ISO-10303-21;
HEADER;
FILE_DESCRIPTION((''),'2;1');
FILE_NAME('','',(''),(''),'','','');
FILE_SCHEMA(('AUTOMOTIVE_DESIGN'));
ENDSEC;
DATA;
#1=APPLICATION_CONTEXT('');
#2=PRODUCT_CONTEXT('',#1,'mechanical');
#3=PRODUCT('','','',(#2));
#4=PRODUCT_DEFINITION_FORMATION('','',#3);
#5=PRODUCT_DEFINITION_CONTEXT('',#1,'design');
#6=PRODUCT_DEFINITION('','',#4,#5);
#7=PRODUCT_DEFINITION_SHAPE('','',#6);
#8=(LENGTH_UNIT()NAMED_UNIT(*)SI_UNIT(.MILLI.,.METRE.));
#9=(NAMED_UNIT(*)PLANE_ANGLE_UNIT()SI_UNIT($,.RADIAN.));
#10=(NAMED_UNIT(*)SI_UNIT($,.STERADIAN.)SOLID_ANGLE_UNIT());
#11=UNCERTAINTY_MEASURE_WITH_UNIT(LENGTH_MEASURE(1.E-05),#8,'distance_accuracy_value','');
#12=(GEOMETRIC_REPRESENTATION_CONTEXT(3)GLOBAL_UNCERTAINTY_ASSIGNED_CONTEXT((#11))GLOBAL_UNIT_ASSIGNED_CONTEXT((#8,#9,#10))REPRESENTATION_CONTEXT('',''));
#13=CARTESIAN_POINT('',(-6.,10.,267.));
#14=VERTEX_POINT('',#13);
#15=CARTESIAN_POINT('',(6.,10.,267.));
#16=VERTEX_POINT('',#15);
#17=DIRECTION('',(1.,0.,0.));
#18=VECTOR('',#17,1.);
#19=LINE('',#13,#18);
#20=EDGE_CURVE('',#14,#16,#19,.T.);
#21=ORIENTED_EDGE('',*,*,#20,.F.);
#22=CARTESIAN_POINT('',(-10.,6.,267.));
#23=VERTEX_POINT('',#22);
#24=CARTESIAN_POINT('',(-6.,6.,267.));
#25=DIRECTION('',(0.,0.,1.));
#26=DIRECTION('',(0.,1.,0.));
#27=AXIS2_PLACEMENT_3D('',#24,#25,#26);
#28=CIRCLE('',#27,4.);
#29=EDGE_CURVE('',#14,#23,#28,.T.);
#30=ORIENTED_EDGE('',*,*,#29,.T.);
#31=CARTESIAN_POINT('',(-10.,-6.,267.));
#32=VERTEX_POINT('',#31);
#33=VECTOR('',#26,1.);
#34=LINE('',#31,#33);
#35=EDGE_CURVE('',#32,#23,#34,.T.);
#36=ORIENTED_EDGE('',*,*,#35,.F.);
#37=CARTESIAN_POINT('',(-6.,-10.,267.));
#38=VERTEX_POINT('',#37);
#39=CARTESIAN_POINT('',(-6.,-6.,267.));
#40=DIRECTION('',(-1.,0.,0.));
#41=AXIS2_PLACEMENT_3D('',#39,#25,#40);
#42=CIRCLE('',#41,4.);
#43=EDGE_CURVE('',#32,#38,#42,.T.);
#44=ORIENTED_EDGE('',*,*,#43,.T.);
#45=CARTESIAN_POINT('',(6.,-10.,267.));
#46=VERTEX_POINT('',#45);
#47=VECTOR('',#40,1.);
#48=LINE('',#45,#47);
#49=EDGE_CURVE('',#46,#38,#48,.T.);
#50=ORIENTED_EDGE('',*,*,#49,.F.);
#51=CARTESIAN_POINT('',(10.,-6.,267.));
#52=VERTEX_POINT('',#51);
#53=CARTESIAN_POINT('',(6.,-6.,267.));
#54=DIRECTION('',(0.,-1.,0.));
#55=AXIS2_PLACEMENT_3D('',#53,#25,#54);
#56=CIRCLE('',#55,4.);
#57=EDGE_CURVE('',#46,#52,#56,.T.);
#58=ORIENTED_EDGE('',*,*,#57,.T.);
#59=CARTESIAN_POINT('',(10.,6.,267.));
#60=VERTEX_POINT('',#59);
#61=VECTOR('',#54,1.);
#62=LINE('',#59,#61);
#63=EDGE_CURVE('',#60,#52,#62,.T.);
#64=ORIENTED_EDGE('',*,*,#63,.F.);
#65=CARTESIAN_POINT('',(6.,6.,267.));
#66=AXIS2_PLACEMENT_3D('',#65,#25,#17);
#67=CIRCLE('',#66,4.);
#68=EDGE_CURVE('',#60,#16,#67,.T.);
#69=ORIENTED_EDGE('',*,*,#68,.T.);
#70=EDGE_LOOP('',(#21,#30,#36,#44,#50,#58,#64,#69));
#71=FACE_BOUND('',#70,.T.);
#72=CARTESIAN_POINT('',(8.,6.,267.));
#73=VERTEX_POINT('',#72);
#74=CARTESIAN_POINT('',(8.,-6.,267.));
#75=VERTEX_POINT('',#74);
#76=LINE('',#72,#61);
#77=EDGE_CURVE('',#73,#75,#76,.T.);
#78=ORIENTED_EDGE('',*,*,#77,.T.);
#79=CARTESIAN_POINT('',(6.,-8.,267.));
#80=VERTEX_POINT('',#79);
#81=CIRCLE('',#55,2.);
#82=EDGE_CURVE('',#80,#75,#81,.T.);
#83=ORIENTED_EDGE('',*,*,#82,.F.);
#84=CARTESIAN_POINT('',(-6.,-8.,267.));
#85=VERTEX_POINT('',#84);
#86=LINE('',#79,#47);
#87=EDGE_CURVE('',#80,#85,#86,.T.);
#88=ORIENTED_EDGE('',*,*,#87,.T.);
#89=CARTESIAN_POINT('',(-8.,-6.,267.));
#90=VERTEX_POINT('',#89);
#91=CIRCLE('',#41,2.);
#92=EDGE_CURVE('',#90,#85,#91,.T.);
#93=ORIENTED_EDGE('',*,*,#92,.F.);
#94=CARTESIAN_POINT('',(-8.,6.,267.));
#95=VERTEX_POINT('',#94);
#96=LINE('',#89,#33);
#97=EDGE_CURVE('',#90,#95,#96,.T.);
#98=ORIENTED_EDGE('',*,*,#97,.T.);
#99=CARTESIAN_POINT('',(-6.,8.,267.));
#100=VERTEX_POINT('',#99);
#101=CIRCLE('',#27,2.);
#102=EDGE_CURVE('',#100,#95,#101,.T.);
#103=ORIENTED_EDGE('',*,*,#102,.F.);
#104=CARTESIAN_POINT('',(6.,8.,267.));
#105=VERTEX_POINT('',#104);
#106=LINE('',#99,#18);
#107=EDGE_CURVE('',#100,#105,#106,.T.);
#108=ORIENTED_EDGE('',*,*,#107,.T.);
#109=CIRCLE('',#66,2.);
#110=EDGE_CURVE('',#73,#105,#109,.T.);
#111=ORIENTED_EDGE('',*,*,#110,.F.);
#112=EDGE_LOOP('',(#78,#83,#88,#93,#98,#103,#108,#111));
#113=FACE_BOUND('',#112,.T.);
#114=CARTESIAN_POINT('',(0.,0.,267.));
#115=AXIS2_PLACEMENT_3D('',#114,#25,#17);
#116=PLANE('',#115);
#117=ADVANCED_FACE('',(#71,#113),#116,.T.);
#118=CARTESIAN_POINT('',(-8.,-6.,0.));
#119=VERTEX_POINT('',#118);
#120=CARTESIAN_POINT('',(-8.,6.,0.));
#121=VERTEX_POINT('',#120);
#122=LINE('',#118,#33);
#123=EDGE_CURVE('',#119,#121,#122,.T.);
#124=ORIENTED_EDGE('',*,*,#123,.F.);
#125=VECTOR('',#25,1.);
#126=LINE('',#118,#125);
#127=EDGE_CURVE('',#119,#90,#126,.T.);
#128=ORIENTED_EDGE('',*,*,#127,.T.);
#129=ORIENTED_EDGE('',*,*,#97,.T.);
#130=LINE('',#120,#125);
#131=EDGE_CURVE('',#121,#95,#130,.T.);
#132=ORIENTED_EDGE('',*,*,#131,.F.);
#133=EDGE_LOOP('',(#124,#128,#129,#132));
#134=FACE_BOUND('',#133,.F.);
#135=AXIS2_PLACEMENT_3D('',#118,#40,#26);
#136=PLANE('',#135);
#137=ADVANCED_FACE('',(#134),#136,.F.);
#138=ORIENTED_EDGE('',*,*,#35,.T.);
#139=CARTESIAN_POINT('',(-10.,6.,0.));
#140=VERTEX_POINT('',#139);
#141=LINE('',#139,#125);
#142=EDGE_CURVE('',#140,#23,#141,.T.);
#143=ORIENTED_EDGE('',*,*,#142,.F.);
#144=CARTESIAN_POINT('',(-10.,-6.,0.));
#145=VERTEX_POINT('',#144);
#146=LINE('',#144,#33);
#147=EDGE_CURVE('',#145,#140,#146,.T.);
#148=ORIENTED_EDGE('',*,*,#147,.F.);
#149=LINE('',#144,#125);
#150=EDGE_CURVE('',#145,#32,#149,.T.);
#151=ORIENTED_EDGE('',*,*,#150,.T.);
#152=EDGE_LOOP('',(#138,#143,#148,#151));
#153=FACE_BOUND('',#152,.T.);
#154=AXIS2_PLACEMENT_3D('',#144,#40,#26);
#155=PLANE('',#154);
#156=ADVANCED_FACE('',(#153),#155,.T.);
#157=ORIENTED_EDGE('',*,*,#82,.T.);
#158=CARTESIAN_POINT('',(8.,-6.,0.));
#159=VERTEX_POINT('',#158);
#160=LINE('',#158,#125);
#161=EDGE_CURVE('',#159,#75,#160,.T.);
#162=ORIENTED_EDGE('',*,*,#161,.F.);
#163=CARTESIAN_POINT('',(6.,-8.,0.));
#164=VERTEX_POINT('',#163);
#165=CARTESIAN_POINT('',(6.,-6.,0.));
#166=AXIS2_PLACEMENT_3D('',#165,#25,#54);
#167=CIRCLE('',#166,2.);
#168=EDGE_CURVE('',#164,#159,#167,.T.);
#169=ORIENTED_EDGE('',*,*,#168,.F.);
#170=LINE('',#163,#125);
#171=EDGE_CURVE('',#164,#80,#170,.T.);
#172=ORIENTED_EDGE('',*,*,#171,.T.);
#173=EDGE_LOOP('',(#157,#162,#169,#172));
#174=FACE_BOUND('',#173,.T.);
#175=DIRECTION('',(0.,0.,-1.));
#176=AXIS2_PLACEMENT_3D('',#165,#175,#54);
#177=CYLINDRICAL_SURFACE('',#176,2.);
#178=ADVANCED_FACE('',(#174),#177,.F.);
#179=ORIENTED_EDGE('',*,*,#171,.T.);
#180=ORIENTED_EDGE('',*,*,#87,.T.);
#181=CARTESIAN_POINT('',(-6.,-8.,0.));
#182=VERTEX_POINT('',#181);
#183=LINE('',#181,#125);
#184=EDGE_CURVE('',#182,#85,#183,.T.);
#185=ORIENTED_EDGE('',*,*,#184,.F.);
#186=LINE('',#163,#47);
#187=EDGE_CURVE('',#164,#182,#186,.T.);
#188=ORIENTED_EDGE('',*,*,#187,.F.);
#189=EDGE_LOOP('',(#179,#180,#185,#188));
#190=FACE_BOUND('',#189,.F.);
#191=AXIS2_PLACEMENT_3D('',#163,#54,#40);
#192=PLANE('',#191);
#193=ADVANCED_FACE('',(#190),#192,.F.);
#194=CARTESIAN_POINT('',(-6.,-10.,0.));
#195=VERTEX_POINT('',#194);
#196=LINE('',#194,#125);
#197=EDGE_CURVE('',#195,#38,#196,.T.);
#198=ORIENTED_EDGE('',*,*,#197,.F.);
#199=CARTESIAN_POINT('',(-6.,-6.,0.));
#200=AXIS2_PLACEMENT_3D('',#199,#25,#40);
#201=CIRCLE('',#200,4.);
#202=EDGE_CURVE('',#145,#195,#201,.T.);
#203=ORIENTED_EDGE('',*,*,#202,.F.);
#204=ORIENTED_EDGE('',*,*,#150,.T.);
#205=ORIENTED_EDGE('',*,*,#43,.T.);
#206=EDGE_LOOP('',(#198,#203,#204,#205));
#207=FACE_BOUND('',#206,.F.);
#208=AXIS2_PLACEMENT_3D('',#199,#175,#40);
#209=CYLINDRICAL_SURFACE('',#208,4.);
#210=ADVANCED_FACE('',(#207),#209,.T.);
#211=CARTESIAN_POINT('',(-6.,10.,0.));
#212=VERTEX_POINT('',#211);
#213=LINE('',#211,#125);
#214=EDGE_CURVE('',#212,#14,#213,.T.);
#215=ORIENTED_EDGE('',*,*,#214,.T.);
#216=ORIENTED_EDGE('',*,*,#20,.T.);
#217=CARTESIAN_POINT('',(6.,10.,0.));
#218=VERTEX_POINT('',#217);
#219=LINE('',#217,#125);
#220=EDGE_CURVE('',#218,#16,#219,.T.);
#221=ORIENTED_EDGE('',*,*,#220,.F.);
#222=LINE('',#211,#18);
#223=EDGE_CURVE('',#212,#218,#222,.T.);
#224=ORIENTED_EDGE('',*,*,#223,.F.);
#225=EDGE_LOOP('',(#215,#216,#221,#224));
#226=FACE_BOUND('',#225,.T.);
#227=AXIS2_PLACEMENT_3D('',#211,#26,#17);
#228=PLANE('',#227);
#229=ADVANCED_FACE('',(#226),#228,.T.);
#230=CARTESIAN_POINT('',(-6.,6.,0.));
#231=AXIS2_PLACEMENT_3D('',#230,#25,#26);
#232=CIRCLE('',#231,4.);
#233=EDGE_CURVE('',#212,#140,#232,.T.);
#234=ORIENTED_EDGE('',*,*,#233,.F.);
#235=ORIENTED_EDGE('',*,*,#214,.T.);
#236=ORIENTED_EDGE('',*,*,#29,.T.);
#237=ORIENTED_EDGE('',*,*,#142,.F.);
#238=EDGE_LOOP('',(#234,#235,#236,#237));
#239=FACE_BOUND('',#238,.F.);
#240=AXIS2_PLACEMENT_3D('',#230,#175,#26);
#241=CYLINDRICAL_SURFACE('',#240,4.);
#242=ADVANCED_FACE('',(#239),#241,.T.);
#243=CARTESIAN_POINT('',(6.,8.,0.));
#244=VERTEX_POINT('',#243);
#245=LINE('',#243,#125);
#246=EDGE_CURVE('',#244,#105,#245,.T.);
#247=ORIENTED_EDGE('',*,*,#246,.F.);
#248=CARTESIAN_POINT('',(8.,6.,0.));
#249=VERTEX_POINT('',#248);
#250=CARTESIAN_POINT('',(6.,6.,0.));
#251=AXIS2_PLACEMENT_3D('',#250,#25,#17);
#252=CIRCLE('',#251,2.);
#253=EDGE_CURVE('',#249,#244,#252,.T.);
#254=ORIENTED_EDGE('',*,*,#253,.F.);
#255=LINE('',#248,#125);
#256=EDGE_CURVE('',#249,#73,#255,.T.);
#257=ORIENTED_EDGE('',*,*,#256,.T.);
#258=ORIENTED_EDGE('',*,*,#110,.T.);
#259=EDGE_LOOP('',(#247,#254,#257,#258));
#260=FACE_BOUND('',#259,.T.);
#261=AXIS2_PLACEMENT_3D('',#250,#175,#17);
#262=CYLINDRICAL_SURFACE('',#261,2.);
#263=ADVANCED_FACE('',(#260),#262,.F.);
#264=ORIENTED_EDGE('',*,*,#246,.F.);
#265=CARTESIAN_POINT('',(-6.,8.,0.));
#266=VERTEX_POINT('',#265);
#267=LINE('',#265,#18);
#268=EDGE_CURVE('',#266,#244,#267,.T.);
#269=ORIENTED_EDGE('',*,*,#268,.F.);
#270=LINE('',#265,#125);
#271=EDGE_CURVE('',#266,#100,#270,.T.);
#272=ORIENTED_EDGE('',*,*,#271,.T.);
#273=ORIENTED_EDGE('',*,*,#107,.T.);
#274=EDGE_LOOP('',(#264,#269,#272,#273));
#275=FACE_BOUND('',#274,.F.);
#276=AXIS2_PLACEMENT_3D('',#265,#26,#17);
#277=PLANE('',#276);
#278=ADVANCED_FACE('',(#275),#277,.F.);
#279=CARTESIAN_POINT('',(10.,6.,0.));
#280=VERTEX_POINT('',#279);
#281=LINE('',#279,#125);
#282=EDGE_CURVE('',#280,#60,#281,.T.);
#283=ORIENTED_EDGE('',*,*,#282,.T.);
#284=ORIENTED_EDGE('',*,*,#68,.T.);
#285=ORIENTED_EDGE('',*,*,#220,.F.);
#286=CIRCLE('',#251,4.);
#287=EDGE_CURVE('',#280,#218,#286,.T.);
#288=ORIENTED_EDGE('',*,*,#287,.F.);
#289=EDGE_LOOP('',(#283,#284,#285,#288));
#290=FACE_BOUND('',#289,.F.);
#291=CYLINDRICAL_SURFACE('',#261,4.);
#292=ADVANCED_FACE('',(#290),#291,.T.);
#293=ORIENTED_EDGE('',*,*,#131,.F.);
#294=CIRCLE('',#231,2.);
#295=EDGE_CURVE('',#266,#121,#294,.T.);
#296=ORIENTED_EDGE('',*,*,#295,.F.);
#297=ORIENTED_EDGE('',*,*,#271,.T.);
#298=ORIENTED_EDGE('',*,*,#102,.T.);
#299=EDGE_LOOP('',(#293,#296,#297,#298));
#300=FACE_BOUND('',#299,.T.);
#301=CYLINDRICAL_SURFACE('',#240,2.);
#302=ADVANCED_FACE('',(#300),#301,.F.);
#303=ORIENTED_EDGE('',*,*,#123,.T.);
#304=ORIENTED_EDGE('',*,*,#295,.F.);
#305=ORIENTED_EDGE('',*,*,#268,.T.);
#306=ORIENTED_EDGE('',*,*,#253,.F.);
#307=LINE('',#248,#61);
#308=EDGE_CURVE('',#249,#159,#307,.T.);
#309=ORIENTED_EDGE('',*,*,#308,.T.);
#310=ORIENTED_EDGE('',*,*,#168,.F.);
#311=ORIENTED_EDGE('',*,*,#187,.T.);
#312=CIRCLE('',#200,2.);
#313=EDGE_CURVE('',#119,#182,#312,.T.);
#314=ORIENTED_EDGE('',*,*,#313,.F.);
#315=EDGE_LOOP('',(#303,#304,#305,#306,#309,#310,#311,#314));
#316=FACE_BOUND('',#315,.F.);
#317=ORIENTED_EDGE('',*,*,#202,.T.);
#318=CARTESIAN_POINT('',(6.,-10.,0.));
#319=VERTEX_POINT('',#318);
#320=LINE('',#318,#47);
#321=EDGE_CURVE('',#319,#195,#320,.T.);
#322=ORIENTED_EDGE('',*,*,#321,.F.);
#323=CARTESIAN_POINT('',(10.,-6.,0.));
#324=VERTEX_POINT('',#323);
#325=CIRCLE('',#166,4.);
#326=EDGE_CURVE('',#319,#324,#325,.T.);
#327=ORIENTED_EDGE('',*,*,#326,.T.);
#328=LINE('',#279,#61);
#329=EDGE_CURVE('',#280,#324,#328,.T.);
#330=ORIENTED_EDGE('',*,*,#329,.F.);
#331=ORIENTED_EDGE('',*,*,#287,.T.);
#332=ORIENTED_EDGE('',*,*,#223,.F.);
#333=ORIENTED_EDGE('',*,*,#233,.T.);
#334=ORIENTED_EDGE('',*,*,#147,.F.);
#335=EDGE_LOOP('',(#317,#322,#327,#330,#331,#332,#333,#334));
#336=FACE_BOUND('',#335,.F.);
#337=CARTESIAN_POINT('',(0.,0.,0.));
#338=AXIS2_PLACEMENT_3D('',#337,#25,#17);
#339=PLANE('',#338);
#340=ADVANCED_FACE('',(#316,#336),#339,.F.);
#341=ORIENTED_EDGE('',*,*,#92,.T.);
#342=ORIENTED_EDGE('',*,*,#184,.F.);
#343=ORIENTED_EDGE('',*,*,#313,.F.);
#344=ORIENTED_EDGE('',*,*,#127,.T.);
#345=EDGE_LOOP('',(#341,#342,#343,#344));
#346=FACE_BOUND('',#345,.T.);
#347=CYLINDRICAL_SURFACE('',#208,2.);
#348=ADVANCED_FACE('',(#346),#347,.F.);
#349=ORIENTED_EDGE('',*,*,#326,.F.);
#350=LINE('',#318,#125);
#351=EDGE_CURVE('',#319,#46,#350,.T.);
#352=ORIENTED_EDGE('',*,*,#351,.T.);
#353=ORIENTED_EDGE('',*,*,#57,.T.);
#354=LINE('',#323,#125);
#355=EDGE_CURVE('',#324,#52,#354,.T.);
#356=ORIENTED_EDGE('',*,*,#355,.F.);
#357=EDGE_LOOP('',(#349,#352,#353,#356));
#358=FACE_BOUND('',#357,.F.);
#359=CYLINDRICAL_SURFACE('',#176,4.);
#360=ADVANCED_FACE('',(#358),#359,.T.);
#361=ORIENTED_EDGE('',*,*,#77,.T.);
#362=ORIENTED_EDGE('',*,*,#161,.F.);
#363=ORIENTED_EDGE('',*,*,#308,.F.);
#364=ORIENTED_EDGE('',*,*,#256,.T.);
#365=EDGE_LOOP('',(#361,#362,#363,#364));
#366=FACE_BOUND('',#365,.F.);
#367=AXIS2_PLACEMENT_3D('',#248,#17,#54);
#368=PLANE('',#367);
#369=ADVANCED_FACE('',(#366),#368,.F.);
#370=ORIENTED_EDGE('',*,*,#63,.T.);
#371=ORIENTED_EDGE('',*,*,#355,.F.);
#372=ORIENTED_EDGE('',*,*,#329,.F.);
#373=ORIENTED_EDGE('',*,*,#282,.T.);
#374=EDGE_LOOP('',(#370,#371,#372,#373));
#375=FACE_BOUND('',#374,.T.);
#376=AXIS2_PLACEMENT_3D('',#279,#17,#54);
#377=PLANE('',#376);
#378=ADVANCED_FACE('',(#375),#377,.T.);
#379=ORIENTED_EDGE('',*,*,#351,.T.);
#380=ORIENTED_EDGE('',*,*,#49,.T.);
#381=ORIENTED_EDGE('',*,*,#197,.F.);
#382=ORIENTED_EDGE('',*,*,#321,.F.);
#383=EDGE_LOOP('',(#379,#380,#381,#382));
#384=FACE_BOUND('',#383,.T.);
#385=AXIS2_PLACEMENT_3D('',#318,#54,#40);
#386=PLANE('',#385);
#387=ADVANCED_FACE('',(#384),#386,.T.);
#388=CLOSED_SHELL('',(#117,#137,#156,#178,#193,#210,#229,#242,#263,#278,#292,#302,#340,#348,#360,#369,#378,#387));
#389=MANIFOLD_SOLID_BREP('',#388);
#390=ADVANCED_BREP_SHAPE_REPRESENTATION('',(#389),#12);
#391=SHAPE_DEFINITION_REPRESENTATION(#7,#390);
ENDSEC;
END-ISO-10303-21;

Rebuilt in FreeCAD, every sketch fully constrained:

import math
import FreeCAD as App
import Part
import Sketcher
Q = App.Units.Quantity

doc = App.newDocument("Part")
params = doc.addObject("Spreadsheet::Sheet", "Params")
for row, (alias, value) in enumerate([
    ("sketch1_radius", "4 mm"),
    ("sketch1_radius2", "2 mm"),
    ("pad1_length", "267 mm"),
], start=1):
    params.set(f"A{row}", alias)
    params.set(f"B{row}", "=" + value)
    params.setAlias(f"B{row}", alias)

body = doc.addObject("PartDesign::Body", "Body")

# Sketch on XY plane
sketch1 = body.newObject("Sketcher::SketchObject", "Sketch")
sketch1.AttachmentSupport = (doc.getObject("XY_Plane"), [""])
sketch1.MapMode = "FlatFace"
sketch1.addGeometry(Part.LineSegment(App.Vector(-10, 6, 0), App.Vector(-10, -6, 0)), False)
sketch1.addGeometry(Part.ArcOfCircle(Part.Circle(App.Vector(-6, -6, 0), App.Vector(0, 0, 1), 4), math.radians(180), math.radians(270)), False)
sketch1.addGeometry(Part.LineSegment(App.Vector(-6, -10, 0), App.Vector(6, -10, 0)), False)
sketch1.addGeometry(Part.ArcOfCircle(Part.Circle(App.Vector(6, -6, 0), App.Vector(0, 0, 1), 4), math.radians(-90), math.radians(0)), False)
sketch1.addGeometry(Part.LineSegment(App.Vector(10, -6, 0), App.Vector(10, 6, 0)), False)
sketch1.addGeometry(Part.ArcOfCircle(Part.Circle(App.Vector(6, 6, 0), App.Vector(0, 0, 1), 4), math.radians(0), math.radians(90)), False)
sketch1.addGeometry(Part.LineSegment(App.Vector(6, 10, 0), App.Vector(-6, 10, 0)), False)
sketch1.addGeometry(Part.ArcOfCircle(Part.Circle(App.Vector(-6, 6, 0), App.Vector(0, 0, 1), 4), math.radians(90), math.radians(180)), False)
sketch1.addGeometry(Part.ArcOfCircle(Part.Circle(App.Vector(-6, 6, 0), App.Vector(0, 0, 1), 2), math.radians(90), math.radians(180)), False)
sketch1.addGeometry(Part.LineSegment(App.Vector(-6, 8, 0), App.Vector(6, 8, 0)), False)
sketch1.addGeometry(Part.ArcOfCircle(Part.Circle(App.Vector(6, 6, 0), App.Vector(0, 0, 1), 2), math.radians(0), math.radians(90)), False)
sketch1.addGeometry(Part.LineSegment(App.Vector(8, 6, 0), App.Vector(8, -6, 0)), False)
sketch1.addGeometry(Part.ArcOfCircle(Part.Circle(App.Vector(6, -6, 0), App.Vector(0, 0, 1), 2), math.radians(-90), math.radians(0)), False)
sketch1.addGeometry(Part.LineSegment(App.Vector(6, -8, 0), App.Vector(-6, -8, 0)), False)
sketch1.addGeometry(Part.ArcOfCircle(Part.Circle(App.Vector(-6, -6, 0), App.Vector(0, 0, 1), 2), math.radians(180), math.radians(270)), False)
sketch1.addGeometry(Part.LineSegment(App.Vector(-8, -6, 0), App.Vector(-8, 6, 0)), False)
sketch1.addConstraint(Sketcher.Constraint("Tangent", 0, 2, 1, 1))
sketch1.addConstraint(Sketcher.Constraint("Tangent", 1, 2, 2, 1))
sketch1.addConstraint(Sketcher.Constraint("Tangent", 2, 2, 3, 1))
sketch1.addConstraint(Sketcher.Constraint("Tangent", 3, 2, 4, 1))
sketch1.addConstraint(Sketcher.Constraint("Tangent", 4, 2, 5, 1))
sketch1.addConstraint(Sketcher.Constraint("Tangent", 5, 2, 6, 1))
sketch1.addConstraint(Sketcher.Constraint("Tangent", 6, 2, 7, 1))
sketch1.addConstraint(Sketcher.Constraint("Tangent", 7, 2, 0, 1))
sketch1.addConstraint(Sketcher.Constraint("Tangent", 8, 1, 9, 1))
sketch1.addConstraint(Sketcher.Constraint("Tangent", 9, 2, 10, 2))
sketch1.addConstraint(Sketcher.Constraint("Tangent", 10, 1, 11, 1))
sketch1.addConstraint(Sketcher.Constraint("Tangent", 11, 2, 12, 2))
sketch1.addConstraint(Sketcher.Constraint("Tangent", 12, 1, 13, 1))
sketch1.addConstraint(Sketcher.Constraint("Tangent", 13, 2, 14, 2))
sketch1.addConstraint(Sketcher.Constraint("Tangent", 14, 1, 15, 1))
sketch1.addConstraint(Sketcher.Constraint("Tangent", 15, 2, 8, 2))
sketch1.addConstraint(Sketcher.Constraint("Vertical", 0))
sketch1.addConstraint(Sketcher.Constraint("Horizontal", 2))
sketch1.addConstraint(Sketcher.Constraint("Vertical", 4))
sketch1.addConstraint(Sketcher.Constraint("Horizontal", 6))
sketch1.addConstraint(Sketcher.Constraint("Horizontal", 9))
sketch1.addConstraint(Sketcher.Constraint("Vertical", 11))
sketch1.addConstraint(Sketcher.Constraint("Horizontal", 13))
sketch1.addConstraint(Sketcher.Constraint("Vertical", 15))
sketch1.addConstraint(Sketcher.Constraint("Coincident", 8, 3, 7, 3))
sketch1.addConstraint(Sketcher.Constraint("Coincident", 10, 3, 5, 3))
sketch1.addConstraint(Sketcher.Constraint("Coincident", 12, 3, 3, 3))
sketch1.addConstraint(Sketcher.Constraint("Equal", 1, 3))
sketch1.addConstraint(Sketcher.Constraint("Equal", 3, 5))
sketch1.addConstraint(Sketcher.Constraint("Equal", 5, 7))
sketch1.addConstraint(Sketcher.Constraint("Equal", 12, 14))
sketch1.addConstraint(Sketcher.Constraint("Symmetric", 1, 3, 5, 3, -1, 1))
sketch1.addConstraint(Sketcher.Constraint("Equal", 13, 0))
sketch1.addConstraint(Sketcher.Constraint("Radius", 1, Q("4 mm")))
sketch1.addConstraint(Sketcher.Constraint("Radius", 8, Q("2 mm")))
sketch1.addConstraint(Sketcher.Constraint("DistanceX", 0, 2, -1, 1, Q("10 mm")))
sketch1.setExpression("Constraints[33]", "Params.sketch1_radius")
sketch1.setExpression("Constraints[34]", "Params.sketch1_radius2")
pad1 = body.newObject("PartDesign::Pad", "Pad")
pad1.Profile = sketch1
pad1.setExpression("Length", "Params.pad1_length")

doc.recompute()
